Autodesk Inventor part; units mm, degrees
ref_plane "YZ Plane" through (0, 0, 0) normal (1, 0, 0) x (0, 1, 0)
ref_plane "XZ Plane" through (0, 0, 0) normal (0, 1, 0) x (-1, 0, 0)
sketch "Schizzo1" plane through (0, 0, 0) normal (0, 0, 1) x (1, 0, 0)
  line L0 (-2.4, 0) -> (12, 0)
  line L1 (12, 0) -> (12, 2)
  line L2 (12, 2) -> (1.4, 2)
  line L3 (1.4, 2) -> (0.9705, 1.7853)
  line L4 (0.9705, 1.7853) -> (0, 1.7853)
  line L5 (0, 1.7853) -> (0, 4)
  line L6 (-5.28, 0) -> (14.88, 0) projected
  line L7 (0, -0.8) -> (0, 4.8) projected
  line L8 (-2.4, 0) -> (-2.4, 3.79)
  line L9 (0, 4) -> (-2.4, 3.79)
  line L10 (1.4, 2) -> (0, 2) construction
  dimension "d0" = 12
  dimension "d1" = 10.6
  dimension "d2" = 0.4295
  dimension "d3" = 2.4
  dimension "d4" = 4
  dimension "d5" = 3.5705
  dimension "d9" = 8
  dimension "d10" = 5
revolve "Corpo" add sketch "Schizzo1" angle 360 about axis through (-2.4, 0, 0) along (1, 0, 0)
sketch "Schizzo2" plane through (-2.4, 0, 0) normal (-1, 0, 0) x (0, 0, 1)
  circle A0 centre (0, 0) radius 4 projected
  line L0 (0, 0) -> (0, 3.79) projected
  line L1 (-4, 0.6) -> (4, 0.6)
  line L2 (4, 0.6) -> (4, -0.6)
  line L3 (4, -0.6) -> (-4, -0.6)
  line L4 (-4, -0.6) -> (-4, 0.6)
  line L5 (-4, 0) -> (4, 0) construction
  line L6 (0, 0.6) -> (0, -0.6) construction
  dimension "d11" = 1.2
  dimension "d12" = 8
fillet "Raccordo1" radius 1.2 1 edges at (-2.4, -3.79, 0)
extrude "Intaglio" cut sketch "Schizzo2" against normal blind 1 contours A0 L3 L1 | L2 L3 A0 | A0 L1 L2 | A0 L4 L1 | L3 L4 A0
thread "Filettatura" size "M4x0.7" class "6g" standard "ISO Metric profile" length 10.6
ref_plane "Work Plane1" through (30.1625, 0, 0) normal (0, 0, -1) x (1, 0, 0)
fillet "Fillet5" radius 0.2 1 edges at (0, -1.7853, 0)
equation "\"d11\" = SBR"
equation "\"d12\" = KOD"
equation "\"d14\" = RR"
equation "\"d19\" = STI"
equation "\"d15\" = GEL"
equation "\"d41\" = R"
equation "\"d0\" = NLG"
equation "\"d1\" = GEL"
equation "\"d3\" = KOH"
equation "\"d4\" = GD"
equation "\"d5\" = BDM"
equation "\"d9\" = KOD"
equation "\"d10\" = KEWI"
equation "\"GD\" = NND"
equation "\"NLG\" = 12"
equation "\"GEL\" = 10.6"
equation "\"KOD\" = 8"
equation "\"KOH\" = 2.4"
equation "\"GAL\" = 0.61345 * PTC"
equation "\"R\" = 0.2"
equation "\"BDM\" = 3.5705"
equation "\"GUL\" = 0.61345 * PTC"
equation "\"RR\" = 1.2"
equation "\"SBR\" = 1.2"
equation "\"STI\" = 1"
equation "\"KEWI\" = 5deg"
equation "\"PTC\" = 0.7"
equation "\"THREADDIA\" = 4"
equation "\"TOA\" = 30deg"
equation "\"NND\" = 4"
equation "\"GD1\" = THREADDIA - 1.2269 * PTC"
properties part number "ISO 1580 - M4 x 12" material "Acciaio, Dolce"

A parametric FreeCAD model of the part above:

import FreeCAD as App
import Part
import Sketcher
from FreeCAD import Vector
Q = App.Units.Quantity


def edges_at(feature, points):
    """Names of the edges that pass closest to the given points."""
    edges = feature.Shape.Edges
    near = lambda p: min(range(len(edges)), key=lambda i: edges[i].distToShape(Part.Vertex(*p))[0])
    return sorted({f"Edge{near(p) + 1}" for p in points})

doc = App.newDocument("Part")
body = doc.addObject("PartDesign::Body", "Body")

# Sketch on XY plane
sketch1 = body.newObject("Sketcher::SketchObject", "Sketch")
sketch1.AttachmentSupport = (doc.getObject("XY_Plane"), [""])
sketch1.MapMode = "FlatFace"
sketch1.addGeometry([
    Part.LineSegment(Vector(-2.4, 3.79, 0), Vector(-2.4, 0, 0)),  # 0
    Part.LineSegment(Vector(-2.4, 0, 0), Vector(12, 0, 0)),  # 1
    Part.LineSegment(Vector(12, 0, 0), Vector(12, 2, 0)),  # 2
    Part.LineSegment(Vector(12, 2, 0), Vector(1.4, 2, 0)),  # 3
    Part.LineSegment(Vector(1.4, 2, 0), Vector(0.97, 1.79, 0)),  # 4
    Part.LineSegment(Vector(0.97, 1.79, 0), Vector(0, 1.79, 0)),  # 5
    Part.LineSegment(Vector(0, 1.79, 0), Vector(0, 4, 0)),  # 6
    Part.LineSegment(Vector(0, 4, 0), Vector(-2.4, 3.79, 0)),  # 7
], False)
sketch1.addConstraint([
    Sketcher.Constraint("Coincident", 0, 2, 1, 1),
    Sketcher.Constraint("Coincident", 1, 2, 2, 1),
    Sketcher.Constraint("Coincident", 2, 2, 3, 1),
    Sketcher.Constraint("Coincident", 3, 2, 4, 1),
    Sketcher.Constraint("Coincident", 4, 2, 5, 1),
    Sketcher.Constraint("Coincident", 5, 2, 6, 1),
    Sketcher.Constraint("Coincident", 6, 2, 7, 1),
    Sketcher.Constraint("Coincident", 7, 2, 0, 1),
    Sketcher.Constraint("Vertical", 0),
    Sketcher.Constraint("Horizontal", 1),
    Sketcher.Constraint("Vertical", 2),
    Sketcher.Constraint("Horizontal", 3),
    Sketcher.Constraint("Horizontal", 5),
    Sketcher.Constraint("Vertical", 6),
    Sketcher.Constraint("PointOnObject", 0, 2, -1),
    Sketcher.Constraint("PointOnObject", 5, 2, -2),
    Sketcher.Constraint("DistanceX", 3, 2, 3, 1, Q("10.6 mm")),
    Sketcher.Constraint("DistanceX", -1, 1, 1, 2, Q("12 mm")),
    Sketcher.Constraint("DistanceY", -1, 1, 6, 2, Q("4 mm")),
    Sketcher.Constraint("DistanceX", 0, 2, -1, 1, Q("2.4 mm")),
    Sketcher.Constraint("DistanceY", 2, 1, 2, 2, Q("2 mm")),
    Sketcher.Constraint("Angle", 7, Q("-174.9994 deg")),
    Sketcher.Constraint("Angle", 4, Q("-153.4403 deg")),
    Sketcher.Constraint("DistanceX", 4, 2, 3, 2, Q("0.4295 mm")),
])
revolution = body.newObject("PartDesign::Revolution", "Revolution")
revolution.Profile = sketch1
revolution.ReferenceAxis = (sketch1, ["H_Axis"])
revolution.Angle = 360
doc.recompute()

fillet = body.newObject("PartDesign::Fillet", "Fillet")
fillet.Base = (revolution, edges_at(revolution, [(-2.4, -3.79, 0)]))
fillet.Radius = 1.2

# Sketch on YZ plane
sketch2 = body.newObject("Sketcher::SketchObject", "Sketch001")
sketch2.AttachmentSupport = (doc.getObject("YZ_Plane"), [""])
sketch2.MapMode = "FlatFace"
sketch2.AttachmentOffset = App.Placement(Vector(0, 0, -2.4), App.Rotation())
sketch2.addGeometry([
    Part.LineSegment(Vector(-0.6, 4, 0), Vector(0.6, 4, 0)),
    Part.LineSegment(Vector(0.6, 4, 0), Vector(0.6, -4, 0)),
    Part.LineSegment(Vector(0.6, -4, 0), Vector(-0.6, -4, 0)),
    Part.LineSegment(Vector(-0.6, -4, 0), Vector(-0.6, 4, 0)),
], False)
sketch2.addConstraint([
    Sketcher.Constraint("Coincident", 0, 2, 1, 1),
    Sketcher.Constraint("Coincident", 1, 2, 2, 1),
    Sketcher.Constraint("Coincident", 2, 2, 3, 1),
    Sketcher.Constraint("Coincident", 3, 2, 0, 1),
    Sketcher.Constraint("Horizontal", 0),
    Sketcher.Constraint("Vertical", 1),
    Sketcher.Constraint("Horizontal", 2),
    Sketcher.Constraint("Vertical", 3),
    Sketcher.Constraint("Symmetric", 0, 2, 2, 2, -1, 1),
    Sketcher.Constraint("DistanceY", 1, 2, 1, 1, Q("8 mm")),
    Sketcher.Constraint("DistanceX", 0, 1, 0, 2, Q("1.2 mm")),
])
pocket1 = body.newObject("PartDesign::Pocket", "Pocket")
pocket1.Profile = sketch2
pocket1.Length = 1
pocket1.Reversed = True
doc.recompute()

fillet2 = body.newObject("PartDesign::Fillet", "Fillet001")
fillet2.Base = (pocket1, edges_at(pocket1, [(0, -1.785, 0)]))
fillet2.Radius = 0.2

doc.recompute()
